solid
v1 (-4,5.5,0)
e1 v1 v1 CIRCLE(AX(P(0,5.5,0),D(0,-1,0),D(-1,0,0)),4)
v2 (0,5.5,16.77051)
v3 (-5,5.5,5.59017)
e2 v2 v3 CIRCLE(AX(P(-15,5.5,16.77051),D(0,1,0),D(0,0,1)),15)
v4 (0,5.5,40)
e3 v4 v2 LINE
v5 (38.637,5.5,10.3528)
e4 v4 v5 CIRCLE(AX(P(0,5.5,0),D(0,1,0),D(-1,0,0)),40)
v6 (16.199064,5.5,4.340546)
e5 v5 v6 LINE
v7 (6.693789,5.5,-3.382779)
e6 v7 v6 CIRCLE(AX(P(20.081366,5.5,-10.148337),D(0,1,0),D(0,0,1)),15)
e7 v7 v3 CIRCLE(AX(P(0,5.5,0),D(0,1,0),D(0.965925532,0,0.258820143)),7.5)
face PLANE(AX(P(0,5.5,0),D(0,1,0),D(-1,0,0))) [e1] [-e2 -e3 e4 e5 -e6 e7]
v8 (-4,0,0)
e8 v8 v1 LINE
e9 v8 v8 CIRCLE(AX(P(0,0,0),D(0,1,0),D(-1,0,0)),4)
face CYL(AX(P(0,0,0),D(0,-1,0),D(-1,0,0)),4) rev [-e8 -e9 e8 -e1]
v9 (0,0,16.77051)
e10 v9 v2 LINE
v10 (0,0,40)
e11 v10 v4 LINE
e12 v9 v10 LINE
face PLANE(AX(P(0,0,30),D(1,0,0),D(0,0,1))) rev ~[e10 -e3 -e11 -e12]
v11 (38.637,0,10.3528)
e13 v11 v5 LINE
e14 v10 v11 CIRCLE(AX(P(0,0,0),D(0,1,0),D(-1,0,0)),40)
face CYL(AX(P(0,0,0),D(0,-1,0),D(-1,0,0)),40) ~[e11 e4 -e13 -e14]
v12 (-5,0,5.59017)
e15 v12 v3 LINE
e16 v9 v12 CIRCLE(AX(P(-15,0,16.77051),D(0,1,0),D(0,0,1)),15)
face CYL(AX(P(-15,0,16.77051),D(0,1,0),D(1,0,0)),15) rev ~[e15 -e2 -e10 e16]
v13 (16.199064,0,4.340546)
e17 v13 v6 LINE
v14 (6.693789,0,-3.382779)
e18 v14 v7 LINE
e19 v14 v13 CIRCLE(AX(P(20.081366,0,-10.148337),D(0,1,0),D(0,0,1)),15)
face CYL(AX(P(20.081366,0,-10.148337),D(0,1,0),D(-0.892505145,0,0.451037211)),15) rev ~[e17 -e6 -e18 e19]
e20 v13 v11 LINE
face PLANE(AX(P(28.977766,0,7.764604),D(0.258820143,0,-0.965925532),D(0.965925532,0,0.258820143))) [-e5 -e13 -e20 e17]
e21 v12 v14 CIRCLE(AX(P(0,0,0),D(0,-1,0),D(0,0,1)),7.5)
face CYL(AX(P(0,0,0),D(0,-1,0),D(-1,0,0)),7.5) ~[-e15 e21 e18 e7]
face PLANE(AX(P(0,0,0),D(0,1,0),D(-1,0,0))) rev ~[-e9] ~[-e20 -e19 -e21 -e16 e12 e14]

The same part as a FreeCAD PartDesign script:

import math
import FreeCAD as App
import Part
import Sketcher
Q = App.Units.Quantity


def edges_at(feature, points):
    """Names of the edges that pass closest to the given points."""
    edges = feature.Shape.Edges
    near = lambda p: min(range(len(edges)), key=lambda i: edges[i].distToShape(Part.Vertex(*p))[0])
    return sorted({f"Edge{near(p) + 1}" for p in points})

doc = App.newDocument("Part")
body = doc.addObject("PartDesign::Body", "Body")

# Sketch on XZ plane
sketch1 = body.newObject("Sketcher::SketchObject", "Sketch")
sketch1.AttachmentSupport = (doc.getObject("XZ_Plane"), [""])
sketch1.MapMode = "FlatFace"
sketch1.addGeometry([
    Part.ArcOfCircle(Part.Circle(App.Vector(0, 0, 0), App.Vector(0, 0, 1), 40), math.radians(15), math.radians(90)),  # 0
    Part.LineSegment(App.Vector(38.6, 10.4, 0), App.Vector(7.2, 1.9, 0)),  # 1
    Part.ArcOfCircle(Part.Circle(App.Vector(0, 0, 0), App.Vector(0, 0, 1), 7.5), math.radians(90), math.radians(375)),  # 2
    Part.LineSegment(App.Vector(0, 7.5, 0), App.Vector(0, 40, 0)),  # 3
    Part.Circle(App.Vector(0, 0, 0), App.Vector(0, 0, 1), 4),  # 4
], False)
sketch1.addConstraint([
    Sketcher.Constraint("Coincident", 0, 1, 1, 1),
    Sketcher.Constraint("Coincident", 1, 2, 2, 2),
    Sketcher.Constraint("Coincident", 2, 1, 3, 1),
    Sketcher.Constraint("Coincident", 3, 2, 0, 2),
    Sketcher.Constraint("Vertical", 3),
    Sketcher.Constraint("Coincident", 0, 3, -1, 1),
    Sketcher.Constraint("Coincident", 2, 3, -1, 1),
    Sketcher.Constraint("Coincident", 4, 3, -1, 1),
    Sketcher.Constraint("PointOnObject", 2, 1, -2),
    Sketcher.Constraint("Diameter", 4, Q("8 mm")),
    Sketcher.Constraint("Radius", 2, Q("7.5 mm")),
    Sketcher.Constraint("Radius", 0, Q("40 mm")),
    Sketcher.Constraint("Angle", 1, Q("-165 deg")),
    Sketcher.Constraint("DistanceX", -1, 1, 0, 1, Q("38.637 mm")),
])
pad1 = body.newObject("PartDesign::Pad", "Pad")
pad1.Profile = sketch1
pad1.Length = 5.5
pad1.Reversed = True
doc.recompute()

fillet = body.newObject("PartDesign::Fillet", "Fillet")
fillet.Base = (pad1, edges_at(pad1, [(7.244, 2.75, 1.941), (0, 2.75, 7.5)]))
fillet.Radius = 15

doc.recompute()
